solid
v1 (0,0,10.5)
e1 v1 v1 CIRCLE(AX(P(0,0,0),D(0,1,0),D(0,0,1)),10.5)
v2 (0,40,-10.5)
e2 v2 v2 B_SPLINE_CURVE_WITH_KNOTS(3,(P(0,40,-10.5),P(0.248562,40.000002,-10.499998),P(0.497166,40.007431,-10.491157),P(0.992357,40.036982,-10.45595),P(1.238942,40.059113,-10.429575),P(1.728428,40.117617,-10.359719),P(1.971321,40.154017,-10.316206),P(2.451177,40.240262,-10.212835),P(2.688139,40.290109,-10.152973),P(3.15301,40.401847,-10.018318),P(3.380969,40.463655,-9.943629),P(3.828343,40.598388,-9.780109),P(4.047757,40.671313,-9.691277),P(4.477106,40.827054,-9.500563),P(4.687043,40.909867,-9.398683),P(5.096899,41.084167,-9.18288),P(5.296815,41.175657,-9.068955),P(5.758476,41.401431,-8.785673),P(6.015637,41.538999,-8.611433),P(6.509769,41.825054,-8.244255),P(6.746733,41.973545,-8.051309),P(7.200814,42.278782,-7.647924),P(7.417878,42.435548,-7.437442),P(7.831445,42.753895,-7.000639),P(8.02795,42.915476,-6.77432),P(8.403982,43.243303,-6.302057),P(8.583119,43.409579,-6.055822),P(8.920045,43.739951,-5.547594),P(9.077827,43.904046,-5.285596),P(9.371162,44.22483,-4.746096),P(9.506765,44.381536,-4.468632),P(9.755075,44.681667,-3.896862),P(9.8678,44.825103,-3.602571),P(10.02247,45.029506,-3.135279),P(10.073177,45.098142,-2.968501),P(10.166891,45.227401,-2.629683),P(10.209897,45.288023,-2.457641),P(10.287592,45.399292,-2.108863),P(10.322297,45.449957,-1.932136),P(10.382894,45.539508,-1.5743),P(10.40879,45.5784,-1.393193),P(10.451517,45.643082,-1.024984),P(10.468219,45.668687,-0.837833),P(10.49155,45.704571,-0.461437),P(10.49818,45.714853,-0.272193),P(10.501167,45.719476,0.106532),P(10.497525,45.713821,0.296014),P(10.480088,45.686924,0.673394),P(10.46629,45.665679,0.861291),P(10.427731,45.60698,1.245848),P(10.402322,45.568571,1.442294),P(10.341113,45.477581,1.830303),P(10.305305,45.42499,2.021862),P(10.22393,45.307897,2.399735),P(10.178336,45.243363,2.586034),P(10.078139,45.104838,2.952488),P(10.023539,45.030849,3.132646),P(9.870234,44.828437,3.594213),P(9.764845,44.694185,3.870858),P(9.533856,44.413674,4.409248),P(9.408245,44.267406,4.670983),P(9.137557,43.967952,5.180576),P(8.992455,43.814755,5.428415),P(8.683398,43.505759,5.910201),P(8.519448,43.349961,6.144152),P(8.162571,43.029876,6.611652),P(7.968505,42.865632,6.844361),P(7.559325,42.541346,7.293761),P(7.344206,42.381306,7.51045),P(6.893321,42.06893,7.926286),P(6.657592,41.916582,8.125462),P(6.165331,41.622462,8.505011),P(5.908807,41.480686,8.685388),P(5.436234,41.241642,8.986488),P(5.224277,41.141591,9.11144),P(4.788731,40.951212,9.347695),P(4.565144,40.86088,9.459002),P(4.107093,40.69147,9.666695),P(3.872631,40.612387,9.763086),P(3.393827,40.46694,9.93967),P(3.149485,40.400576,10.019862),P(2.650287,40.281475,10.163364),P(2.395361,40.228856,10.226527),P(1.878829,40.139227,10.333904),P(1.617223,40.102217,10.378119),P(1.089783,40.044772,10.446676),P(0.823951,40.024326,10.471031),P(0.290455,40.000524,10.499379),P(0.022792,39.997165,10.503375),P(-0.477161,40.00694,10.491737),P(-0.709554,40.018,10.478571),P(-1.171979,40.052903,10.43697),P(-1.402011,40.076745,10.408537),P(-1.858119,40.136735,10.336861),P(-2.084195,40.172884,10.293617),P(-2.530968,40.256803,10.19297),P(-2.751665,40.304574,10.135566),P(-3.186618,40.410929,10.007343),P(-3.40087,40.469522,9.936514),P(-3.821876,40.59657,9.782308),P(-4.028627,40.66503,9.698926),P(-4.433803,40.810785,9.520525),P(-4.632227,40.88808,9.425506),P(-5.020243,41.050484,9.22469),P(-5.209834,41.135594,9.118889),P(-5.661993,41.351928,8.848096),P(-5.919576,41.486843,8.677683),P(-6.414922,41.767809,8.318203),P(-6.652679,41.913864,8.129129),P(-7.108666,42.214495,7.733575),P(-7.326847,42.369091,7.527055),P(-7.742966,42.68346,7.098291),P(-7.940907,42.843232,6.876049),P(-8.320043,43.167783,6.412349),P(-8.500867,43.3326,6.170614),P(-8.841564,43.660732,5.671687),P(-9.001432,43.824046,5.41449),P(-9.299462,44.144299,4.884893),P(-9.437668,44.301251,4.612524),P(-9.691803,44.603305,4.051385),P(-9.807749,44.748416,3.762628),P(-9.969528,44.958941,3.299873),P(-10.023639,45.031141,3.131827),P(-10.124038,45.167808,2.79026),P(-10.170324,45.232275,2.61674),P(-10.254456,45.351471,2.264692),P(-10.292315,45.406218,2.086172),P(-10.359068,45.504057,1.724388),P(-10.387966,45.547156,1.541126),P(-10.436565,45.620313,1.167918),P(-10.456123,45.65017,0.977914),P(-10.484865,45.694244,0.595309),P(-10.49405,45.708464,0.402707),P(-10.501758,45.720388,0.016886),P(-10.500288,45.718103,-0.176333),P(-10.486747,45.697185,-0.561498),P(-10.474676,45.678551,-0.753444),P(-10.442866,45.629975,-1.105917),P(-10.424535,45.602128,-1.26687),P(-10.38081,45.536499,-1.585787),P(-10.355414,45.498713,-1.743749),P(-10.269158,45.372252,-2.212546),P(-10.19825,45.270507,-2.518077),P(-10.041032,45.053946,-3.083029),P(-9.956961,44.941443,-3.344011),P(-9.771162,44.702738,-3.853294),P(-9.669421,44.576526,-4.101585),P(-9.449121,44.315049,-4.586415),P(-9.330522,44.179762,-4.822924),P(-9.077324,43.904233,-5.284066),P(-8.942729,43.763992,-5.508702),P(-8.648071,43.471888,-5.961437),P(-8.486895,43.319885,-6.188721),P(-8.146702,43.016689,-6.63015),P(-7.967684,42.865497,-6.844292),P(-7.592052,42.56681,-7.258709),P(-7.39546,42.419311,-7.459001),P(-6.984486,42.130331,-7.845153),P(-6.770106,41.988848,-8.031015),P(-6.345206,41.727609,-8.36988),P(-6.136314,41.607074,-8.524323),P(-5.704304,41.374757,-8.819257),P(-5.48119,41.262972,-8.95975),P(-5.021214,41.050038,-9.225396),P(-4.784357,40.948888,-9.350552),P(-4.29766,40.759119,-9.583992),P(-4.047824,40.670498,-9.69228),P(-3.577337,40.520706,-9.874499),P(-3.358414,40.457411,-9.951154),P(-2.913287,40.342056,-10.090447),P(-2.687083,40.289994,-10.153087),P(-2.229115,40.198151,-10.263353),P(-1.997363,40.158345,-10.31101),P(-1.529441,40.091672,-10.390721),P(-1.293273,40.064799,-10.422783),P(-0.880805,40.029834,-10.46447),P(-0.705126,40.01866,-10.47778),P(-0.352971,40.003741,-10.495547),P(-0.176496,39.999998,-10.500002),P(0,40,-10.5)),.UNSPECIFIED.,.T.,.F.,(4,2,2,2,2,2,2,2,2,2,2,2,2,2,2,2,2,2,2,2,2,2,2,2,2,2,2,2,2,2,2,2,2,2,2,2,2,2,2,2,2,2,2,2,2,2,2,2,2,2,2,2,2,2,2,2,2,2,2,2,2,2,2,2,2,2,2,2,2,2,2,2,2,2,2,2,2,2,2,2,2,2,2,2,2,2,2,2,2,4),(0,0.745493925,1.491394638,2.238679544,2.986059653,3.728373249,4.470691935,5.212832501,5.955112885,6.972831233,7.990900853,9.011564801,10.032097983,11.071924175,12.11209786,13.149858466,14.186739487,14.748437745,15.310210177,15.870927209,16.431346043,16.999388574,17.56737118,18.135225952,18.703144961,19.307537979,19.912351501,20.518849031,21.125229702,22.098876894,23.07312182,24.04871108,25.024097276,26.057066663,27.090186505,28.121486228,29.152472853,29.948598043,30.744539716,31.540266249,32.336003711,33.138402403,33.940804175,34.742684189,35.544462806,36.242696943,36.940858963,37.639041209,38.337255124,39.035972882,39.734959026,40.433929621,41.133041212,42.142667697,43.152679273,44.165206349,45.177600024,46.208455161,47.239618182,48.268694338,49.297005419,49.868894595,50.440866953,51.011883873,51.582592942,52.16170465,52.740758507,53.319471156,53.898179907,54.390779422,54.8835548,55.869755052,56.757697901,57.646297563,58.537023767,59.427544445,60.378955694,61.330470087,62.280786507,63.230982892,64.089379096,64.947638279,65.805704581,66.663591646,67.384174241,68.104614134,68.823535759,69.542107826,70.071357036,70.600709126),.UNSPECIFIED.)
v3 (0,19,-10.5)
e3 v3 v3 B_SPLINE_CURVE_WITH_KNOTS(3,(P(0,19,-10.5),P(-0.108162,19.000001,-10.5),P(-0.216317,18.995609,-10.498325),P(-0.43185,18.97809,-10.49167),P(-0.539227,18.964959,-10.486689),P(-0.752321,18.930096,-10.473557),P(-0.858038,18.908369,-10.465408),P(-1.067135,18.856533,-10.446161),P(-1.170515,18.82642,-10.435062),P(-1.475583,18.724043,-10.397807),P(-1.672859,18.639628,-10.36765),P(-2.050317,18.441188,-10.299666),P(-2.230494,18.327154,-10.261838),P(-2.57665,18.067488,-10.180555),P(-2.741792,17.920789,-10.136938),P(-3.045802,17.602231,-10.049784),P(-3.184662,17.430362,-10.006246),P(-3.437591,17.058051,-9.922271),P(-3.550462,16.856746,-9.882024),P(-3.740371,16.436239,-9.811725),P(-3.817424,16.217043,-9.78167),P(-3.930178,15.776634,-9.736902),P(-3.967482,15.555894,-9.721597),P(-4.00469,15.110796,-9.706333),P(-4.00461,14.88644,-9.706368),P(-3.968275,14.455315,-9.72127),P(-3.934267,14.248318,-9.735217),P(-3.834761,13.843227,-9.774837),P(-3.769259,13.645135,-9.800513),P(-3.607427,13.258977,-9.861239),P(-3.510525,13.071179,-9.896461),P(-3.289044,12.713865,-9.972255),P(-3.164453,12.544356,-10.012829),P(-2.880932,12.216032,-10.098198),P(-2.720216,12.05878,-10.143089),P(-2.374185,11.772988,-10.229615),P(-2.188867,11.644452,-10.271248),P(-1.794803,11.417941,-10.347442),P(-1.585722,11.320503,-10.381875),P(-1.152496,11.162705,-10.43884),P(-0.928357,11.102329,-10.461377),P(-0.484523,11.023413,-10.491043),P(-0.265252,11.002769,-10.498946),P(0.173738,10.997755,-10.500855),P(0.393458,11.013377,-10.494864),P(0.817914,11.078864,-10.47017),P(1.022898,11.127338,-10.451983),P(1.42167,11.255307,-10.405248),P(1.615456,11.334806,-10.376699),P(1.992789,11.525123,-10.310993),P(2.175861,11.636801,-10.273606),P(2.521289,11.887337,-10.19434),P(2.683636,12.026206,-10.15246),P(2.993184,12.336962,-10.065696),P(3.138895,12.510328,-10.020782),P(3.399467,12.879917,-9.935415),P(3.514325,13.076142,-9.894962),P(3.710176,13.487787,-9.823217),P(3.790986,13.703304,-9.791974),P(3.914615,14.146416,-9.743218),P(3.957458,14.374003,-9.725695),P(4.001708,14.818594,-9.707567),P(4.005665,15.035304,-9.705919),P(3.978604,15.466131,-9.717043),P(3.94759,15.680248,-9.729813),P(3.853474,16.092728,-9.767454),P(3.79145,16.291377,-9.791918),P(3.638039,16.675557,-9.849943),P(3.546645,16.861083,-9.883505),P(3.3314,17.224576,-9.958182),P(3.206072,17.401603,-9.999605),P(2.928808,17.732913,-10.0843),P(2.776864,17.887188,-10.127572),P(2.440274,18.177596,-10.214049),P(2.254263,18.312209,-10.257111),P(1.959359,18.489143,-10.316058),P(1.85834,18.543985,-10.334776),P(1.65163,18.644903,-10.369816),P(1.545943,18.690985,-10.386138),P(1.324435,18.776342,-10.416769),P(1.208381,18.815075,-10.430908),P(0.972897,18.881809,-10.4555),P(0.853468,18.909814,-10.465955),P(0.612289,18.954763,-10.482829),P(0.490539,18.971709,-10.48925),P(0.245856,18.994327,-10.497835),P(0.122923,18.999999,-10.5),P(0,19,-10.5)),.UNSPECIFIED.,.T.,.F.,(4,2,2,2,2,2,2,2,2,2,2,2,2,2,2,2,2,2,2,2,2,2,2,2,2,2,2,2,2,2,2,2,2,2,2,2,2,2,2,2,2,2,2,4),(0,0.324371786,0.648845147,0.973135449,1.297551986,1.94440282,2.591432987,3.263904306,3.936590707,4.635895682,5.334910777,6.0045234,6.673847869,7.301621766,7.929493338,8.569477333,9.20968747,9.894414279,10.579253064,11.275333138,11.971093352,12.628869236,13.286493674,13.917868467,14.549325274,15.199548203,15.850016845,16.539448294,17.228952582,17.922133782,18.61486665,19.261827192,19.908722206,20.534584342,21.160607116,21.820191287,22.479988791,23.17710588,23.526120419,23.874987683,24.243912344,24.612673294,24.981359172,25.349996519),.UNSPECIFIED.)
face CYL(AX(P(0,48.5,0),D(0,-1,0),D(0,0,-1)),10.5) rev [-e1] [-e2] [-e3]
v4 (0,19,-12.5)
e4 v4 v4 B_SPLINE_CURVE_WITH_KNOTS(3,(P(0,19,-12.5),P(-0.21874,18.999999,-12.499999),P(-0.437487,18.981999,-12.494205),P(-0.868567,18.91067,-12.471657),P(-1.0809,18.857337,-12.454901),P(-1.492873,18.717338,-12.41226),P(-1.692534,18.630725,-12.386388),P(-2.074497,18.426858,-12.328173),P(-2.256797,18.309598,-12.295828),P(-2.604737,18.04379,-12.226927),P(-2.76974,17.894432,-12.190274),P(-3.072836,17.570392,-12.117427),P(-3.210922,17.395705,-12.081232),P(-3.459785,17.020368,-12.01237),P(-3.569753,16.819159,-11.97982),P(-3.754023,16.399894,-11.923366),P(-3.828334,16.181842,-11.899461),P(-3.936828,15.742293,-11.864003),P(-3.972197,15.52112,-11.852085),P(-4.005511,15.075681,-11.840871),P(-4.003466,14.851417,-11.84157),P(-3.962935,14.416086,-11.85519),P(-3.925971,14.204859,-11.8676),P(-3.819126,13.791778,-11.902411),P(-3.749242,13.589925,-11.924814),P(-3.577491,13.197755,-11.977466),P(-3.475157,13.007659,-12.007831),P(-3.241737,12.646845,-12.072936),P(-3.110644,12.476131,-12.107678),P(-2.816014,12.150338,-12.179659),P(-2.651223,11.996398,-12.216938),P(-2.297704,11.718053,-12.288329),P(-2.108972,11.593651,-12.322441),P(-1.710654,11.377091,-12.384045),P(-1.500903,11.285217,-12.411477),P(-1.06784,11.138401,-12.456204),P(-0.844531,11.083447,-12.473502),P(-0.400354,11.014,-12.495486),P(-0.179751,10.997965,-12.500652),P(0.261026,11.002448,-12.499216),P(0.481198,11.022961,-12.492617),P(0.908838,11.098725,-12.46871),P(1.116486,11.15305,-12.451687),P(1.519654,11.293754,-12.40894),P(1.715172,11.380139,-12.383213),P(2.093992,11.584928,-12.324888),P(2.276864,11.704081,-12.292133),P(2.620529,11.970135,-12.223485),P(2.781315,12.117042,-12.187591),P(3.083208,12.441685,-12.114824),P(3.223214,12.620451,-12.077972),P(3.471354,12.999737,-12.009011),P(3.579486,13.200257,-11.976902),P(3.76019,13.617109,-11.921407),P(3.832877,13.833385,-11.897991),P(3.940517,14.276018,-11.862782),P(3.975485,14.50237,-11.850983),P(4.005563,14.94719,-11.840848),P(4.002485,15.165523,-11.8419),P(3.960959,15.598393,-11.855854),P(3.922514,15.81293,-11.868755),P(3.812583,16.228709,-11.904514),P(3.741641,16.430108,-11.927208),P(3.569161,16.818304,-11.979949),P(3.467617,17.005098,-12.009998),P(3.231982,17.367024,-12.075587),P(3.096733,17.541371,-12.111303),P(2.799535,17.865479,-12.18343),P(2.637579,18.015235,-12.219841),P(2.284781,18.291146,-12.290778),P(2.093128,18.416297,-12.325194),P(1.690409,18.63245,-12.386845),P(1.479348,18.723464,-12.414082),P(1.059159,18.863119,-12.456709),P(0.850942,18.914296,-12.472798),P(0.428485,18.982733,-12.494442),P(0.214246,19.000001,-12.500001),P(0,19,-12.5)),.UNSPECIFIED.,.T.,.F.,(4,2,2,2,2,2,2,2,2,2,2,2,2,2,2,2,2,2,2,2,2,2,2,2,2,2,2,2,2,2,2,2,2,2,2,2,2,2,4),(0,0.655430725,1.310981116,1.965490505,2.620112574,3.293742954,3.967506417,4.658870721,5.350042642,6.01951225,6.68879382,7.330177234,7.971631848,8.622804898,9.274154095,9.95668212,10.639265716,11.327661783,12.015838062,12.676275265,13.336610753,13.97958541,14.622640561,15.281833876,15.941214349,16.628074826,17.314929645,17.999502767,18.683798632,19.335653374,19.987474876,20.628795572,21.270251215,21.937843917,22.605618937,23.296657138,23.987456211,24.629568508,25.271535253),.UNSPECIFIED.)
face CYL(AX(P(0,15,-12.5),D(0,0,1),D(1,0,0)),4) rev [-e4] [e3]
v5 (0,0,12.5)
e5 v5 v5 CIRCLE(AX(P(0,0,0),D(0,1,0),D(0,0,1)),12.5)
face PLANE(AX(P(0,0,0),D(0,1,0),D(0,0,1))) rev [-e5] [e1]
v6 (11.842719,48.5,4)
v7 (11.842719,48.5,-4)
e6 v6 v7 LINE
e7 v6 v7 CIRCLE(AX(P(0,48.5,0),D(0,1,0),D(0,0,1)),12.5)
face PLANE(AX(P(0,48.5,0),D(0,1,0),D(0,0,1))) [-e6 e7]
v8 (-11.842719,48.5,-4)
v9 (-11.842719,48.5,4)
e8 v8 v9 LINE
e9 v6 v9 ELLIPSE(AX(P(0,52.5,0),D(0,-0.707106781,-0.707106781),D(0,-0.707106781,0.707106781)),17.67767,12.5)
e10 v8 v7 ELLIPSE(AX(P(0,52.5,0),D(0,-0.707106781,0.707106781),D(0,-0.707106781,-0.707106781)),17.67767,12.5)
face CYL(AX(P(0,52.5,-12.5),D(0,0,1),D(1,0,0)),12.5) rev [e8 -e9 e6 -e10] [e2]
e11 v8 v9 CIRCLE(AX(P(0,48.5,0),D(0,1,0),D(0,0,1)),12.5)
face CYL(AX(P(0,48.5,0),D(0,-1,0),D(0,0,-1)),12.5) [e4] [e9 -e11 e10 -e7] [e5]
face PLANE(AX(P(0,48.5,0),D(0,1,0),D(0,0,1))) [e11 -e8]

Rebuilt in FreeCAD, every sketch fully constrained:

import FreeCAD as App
import Part
import Sketcher
Q = App.Units.Quantity

doc = App.newDocument("Part")
body = doc.addObject("PartDesign::Body", "Body")

# Sketch on XZ plane
sketch1 = body.newObject("Sketcher::SketchObject", "Sketch")
sketch1.AttachmentSupport = (doc.getObject("XZ_Plane"), [""])
sketch1.MapMode = "FlatFace"
sketch1.addGeometry([
    Part.Circle(App.Vector(0, 0, 0), App.Vector(0, 0, 1), 12),
    Part.Circle(App.Vector(0, 0, 0), App.Vector(0, 0, 1), 10),
], False)
sketch1.addConstraint([
    Sketcher.Constraint("Coincident", 0, 3, -1, 1),
    Sketcher.Constraint("Coincident", 1, 3, -1, 1),
    Sketcher.Constraint("Diameter", 0, Q("25 mm")),
    Sketcher.Constraint("Diameter", 1, Q("21 mm")),
])
pad1 = body.newObject("PartDesign::Pad", "Pad")
pad1.Profile = sketch1
pad1.Length = 48.5
pad1.Reversed = True

# Sketch on XY plane
sketch2 = body.newObject("Sketcher::SketchObject", "Sketch001")
sketch2.AttachmentSupport = (doc.getObject("XY_Plane"), [""])
sketch2.MapMode = "FlatFace"
sketch2.addGeometry(Part.Circle(App.Vector(0, 52, 0), App.Vector(0, 0, 1), 12), False)
sketch2.addConstraint([
    Sketcher.Constraint("PointOnObject", 0, 3, -2),
    Sketcher.Constraint("Diameter", 0, Q("25 mm")),
    Sketcher.Constraint("DistanceY", -1, 1, 0, 3, Q("52.5 mm")),
])
pocket1 = body.newObject("PartDesign::Pocket", "Pocket")
pocket1.Profile = sketch2
pocket1.Type = "ThroughAll"
pocket1.Midplane = True

# Sketch on XY plane
sketch3 = body.newObject("Sketcher::SketchObject", "Sketch002")
sketch3.AttachmentSupport = (doc.getObject("XY_Plane"), [""])
sketch3.MapMode = "FlatFace"
sketch3.addGeometry(Part.Circle(App.Vector(0, 15, 0), App.Vector(0, 0, 1), 4), False)
sketch3.addConstraint([
    Sketcher.Constraint("PointOnObject", 0, 3, -2),
    Sketcher.Constraint("Diameter", 0, Q("8 mm")),
    Sketcher.Constraint("DistanceY", -1, 1, 0, 3, Q("15 mm")),
])
pocket2 = body.newObject("PartDesign::Pocket", "Pocket001")
pocket2.Profile = sketch3
pocket2.Type = "ThroughAll"

doc.recompute()
